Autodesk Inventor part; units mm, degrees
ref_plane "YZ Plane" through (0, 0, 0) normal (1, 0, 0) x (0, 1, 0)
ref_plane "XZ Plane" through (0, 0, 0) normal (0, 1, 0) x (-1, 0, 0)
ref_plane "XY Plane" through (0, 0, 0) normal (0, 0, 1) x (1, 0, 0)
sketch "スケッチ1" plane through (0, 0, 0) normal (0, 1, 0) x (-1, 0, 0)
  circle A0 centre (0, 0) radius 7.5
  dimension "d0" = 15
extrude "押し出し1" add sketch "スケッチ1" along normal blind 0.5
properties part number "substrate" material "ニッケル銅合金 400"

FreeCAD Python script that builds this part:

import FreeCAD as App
import Part
import Sketcher
from FreeCAD import Vector

doc = App.newDocument("Part")
body = doc.addObject("PartDesign::Body", "Body")

# Sketch on XZ plane
sketch1 = body.newObject("Sketcher::SketchObject", "Sketch")
sketch1.AttachmentSupport = (doc.getObject("XZ_Plane"), [""])
sketch1.MapMode = "FlatFace"
sketch1.addGeometry(Part.Circle(Vector(0, 0, 0), Vector(0, 0, 1), 8), False)
sketch1.addConstraint(Sketcher.Constraint("Coincident", 0, 3, -1, 1))
sketch1.addConstraint(Sketcher.Constraint("Diameter", 0, 15.0))
pad1 = body.newObject("PartDesign::Pad", "Pad")
pad1.Profile = sketch1
pad1.Length = 0.5
pad1.Reversed = True

doc.recompute()
